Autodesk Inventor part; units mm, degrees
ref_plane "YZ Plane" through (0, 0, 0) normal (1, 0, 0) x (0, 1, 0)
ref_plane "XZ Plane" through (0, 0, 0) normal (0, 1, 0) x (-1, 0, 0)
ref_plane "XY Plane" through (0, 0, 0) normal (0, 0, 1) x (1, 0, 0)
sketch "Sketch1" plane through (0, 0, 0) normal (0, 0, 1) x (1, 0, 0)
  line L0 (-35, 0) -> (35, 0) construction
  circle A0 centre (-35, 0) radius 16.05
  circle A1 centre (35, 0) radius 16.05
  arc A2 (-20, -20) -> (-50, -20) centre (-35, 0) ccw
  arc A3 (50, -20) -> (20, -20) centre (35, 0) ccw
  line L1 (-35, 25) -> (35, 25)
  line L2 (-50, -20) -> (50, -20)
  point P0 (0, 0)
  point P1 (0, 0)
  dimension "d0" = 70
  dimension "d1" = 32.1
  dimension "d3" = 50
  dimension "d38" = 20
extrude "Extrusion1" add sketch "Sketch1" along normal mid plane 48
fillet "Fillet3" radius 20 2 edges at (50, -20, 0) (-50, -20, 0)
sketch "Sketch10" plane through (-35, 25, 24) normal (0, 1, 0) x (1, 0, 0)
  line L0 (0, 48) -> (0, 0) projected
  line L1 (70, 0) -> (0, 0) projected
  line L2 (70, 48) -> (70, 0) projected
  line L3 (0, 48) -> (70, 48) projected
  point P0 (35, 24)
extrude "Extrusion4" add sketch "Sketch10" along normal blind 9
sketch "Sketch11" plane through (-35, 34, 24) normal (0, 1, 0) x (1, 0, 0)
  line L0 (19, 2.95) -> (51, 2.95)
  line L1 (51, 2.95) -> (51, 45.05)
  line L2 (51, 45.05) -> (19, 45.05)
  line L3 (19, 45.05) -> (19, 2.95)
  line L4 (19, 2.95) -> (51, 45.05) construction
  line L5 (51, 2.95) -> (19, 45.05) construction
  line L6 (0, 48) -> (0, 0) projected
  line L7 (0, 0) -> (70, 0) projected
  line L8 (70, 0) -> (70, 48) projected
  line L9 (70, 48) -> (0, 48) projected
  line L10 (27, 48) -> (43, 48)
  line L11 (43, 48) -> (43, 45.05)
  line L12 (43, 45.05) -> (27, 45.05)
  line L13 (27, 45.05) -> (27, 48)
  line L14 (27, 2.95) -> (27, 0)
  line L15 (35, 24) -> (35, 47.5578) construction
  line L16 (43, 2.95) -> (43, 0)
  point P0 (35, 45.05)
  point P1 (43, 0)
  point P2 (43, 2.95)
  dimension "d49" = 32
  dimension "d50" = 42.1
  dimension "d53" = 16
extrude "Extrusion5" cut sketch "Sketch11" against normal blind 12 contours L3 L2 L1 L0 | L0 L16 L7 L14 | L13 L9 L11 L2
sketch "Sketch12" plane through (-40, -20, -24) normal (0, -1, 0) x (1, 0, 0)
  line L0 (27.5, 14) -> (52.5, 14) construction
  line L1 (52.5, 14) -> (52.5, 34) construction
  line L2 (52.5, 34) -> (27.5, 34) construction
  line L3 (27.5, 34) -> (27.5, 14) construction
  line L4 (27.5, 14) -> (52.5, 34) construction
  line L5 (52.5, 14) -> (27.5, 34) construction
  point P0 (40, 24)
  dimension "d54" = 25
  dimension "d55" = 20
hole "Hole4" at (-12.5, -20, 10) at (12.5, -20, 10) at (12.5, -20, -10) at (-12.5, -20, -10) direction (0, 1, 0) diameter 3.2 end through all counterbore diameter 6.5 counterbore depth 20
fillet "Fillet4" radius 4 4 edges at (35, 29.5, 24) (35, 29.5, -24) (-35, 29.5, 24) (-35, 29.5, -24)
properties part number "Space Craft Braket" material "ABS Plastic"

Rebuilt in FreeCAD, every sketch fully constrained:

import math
import FreeCAD as App
import Part
import Sketcher
Q = App.Units.Quantity


def edges_at(feature, points):
    """Names of the edges that pass closest to the given points."""
    edges = feature.Shape.Edges
    near = lambda p: min(range(len(edges)), key=lambda i: edges[i].distToShape(Part.Vertex(*p))[0])
    return sorted({f"Edge{near(p) + 1}" for p in points})


def add_polygon(sketch, points):
    """Adds a closed chain of lines whose ends are joined by coincident constraints."""
    first, n = sketch.GeometryCount, len(points)
    for a, b in zip(points, points[1:] + points[:1]):
        sketch.addGeometry(Part.LineSegment(App.Vector(*a, 0), App.Vector(*b, 0)), False)
    for i in range(n):
        sketch.addConstraint(Sketcher.Constraint("Coincident", first + i, 2, first + (i + 1) % n, 1))

doc = App.newDocument("Part")
body = doc.addObject("PartDesign::Body", "Body")

# Sketch on XY plane
sketch1 = body.newObject("Sketcher::SketchObject", "Sketch")
sketch1.AttachmentSupport = (doc.getObject("XY_Plane"), [""])
sketch1.MapMode = "FlatFace"
sketch1.addGeometry([
    Part.LineSegment(App.Vector(-50, -20, 0), App.Vector(50, -20, 0)),  # 0
    Part.ArcOfCircle(Part.Circle(App.Vector(35, 0, 0), App.Vector(0, 0, 1), 25), math.radians(-53), math.radians(90)),  # 1
    Part.LineSegment(App.Vector(35, 25, 0), App.Vector(-35, 25, 0)),  # 2
    Part.ArcOfCircle(Part.Circle(App.Vector(-35, 0, 0), App.Vector(0, 0, 1), 25), math.radians(90), math.radians(233)),  # 3
    Part.Circle(App.Vector(-35, 0, 0), App.Vector(0, 0, 1), 16),  # 4
    Part.Circle(App.Vector(35, 0, 0), App.Vector(0, 0, 1), 16),  # 5
], False)
sketch1.addConstraint([
    Sketcher.Constraint("Coincident", 0, 2, 1, 1),
    Sketcher.Constraint("Tangent", 1, 2, 2, 1),
    Sketcher.Constraint("Tangent", 2, 2, 3, 1),
    Sketcher.Constraint("Coincident", 3, 2, 0, 1),
    Sketcher.Constraint("Horizontal", 0),
    Sketcher.Constraint("Horizontal", 2),
    Sketcher.Constraint("Coincident", 4, 3, 3, 3),
    Sketcher.Constraint("Coincident", 5, 3, 1, 3),
    Sketcher.Constraint("Equal", 1, 3),
    Sketcher.Constraint("Equal", 4, 5),
    Sketcher.Constraint("Symmetric", 1, 3, 3, 3, -1, 1),
    Sketcher.Constraint("Radius", 1, Q("25 mm")),
    Sketcher.Constraint("Diameter", 4, Q("32.1 mm")),
    Sketcher.Constraint("DistanceX", 2, 2, 2, 1, Q("70 mm")),
    Sketcher.Constraint("DistanceX", -1, 1, 0, 2, Q("50 mm")),
])
pad1 = body.newObject("PartDesign::Pad", "Pad")
pad1.Profile = sketch1
pad1.Length = 48
pad1.Midplane = True
doc.recompute()

fillet = body.newObject("PartDesign::Fillet", "Fillet")
fillet.Base = (pad1, edges_at(pad1, [(50, -20, 0), (-50, -20, 0)]))
fillet.Radius = 20

# Sketch on XZ plane
sketch2 = body.newObject("Sketcher::SketchObject", "Sketch001")
sketch2.AttachmentSupport = (doc.getObject("XZ_Plane"), [""])
sketch2.MapMode = "FlatFace"
sketch2.AttachmentOffset = App.Placement(App.Vector(0, 0, -25), App.Rotation())
add_polygon(sketch2, [(35, -24), (-35, -24), (-35, 24), (35, 24)])  # lines 0-3
sketch2.addConstraint([
    Sketcher.Constraint("Horizontal", 0),
    Sketcher.Constraint("Vertical", 1),
    Sketcher.Constraint("Horizontal", 2),
    Sketcher.Constraint("Vertical", 3),
    Sketcher.Constraint("Symmetric", 0, 2, 2, 2, -1, 1),
    Sketcher.Constraint("DistanceX", 0, 2, 0, 1, Q("70 mm")),
    Sketcher.Constraint("DistanceY", 1, 1, 1, 2, Q("48 mm")),
])
pad2 = body.newObject("PartDesign::Pad", "Pad001")
pad2.Profile = sketch2
pad2.Length = 9
pad2.Reversed = True

# Sketch on XZ plane
sketch3 = body.newObject("Sketcher::SketchObject", "Sketch002")
sketch3.AttachmentSupport = (doc.getObject("XZ_Plane"), [""])
sketch3.MapMode = "FlatFace"
sketch3.AttachmentOffset = App.Placement(App.Vector(0, 0, -34), App.Rotation())
add_polygon(sketch3, [(-16, -21.1), (-16, 21.1), (-8, 21.1), (-8, 24), (8, 24), (8, 21.1), (16, 21.1), (16, -21.1), (8, -21.1), (8, -24), (-8, -24), (-8, -21.1)])  # lines 0-11
sketch3.addConstraint([
    Sketcher.Constraint("Vertical", 0),
    Sketcher.Constraint("Horizontal", 1),
    Sketcher.Constraint("Vertical", 2),
    Sketcher.Constraint("Horizontal", 3),
    Sketcher.Constraint("Vertical", 4),
    Sketcher.Constraint("Horizontal", 5),
    Sketcher.Constraint("Vertical", 6),
    Sketcher.Constraint("Horizontal", 7),
    Sketcher.Constraint("Vertical", 8),
    Sketcher.Constraint("Horizontal", 9),
    Sketcher.Constraint("Vertical", 10),
    Sketcher.Constraint("Horizontal", 11),
    Sketcher.Constraint("Symmetric", 0, 2, 6, 2, -1, 1),
    Sketcher.Constraint("Symmetric", 2, 2, 8, 2, -1, 1),
    Sketcher.Constraint("Symmetric", 4, 2, 10, 2, -1, 1),
    Sketcher.Constraint("Symmetric", 1, 2, 4, 2, -2),
    Sketcher.Constraint("DistanceX", 3, 1, 3, 2, Q("16 mm")),
    Sketcher.Constraint("DistanceY", 0, 1, 0, 2, Q("42.1 mm")),
    Sketcher.Constraint("DistanceX", 0, 2, -1, 1, Q("16 mm")),
    Sketcher.Constraint("DistanceY", -1, 1, 2, 2, Q("24 mm")),
])
pocket1 = body.newObject("PartDesign::Pocket", "Pocket")
pocket1.Profile = sketch3
pocket1.Length = 12
pocket1.Reversed = True

# Sketch on XZ plane
sketch4 = body.newObject("Sketcher::SketchObject", "Sketch003")
sketch4.AttachmentSupport = (doc.getObject("XZ_Plane"), [""])
sketch4.MapMode = "FlatFace"
sketch4.AttachmentOffset = App.Placement(App.Vector(0, 0, 20), App.Rotation())
sketch4.addGeometry([
    Part.Circle(App.Vector(-12.5, 10, 0), App.Vector(0, 0, 1), 1.6),
    Part.Circle(App.Vector(12.5, 10, 0), App.Vector(0, 0, 1), 1.6),
    Part.Circle(App.Vector(12.5, -10, 0), App.Vector(0, 0, 1), 1.6),
    Part.Circle(App.Vector(-12.5, -10, 0), App.Vector(0, 0, 1), 1.6),
], False)
sketch4.addConstraint([
    Sketcher.Constraint("Equal", 0, 1),
    Sketcher.Constraint("Equal", 1, 2),
    Sketcher.Constraint("Equal", 2, 3),
    Sketcher.Constraint("Symmetric", 0, 3, 2, 3, -1, 1),
    Sketcher.Constraint("Symmetric", 1, 3, 3, 3, -1, 1),
    Sketcher.Constraint("Symmetric", 0, 3, 1, 3, -2),
    Sketcher.Constraint("Diameter", 0, Q("3.2 mm")),
    Sketcher.Constraint("DistanceY", -1, 1, 0, 3, Q("10 mm")),
    Sketcher.Constraint("DistanceX", 0, 3, 1, 3, Q("25 mm")),
])
doc.recompute()
hole = body.newObject("PartDesign::Hole", "Hole")
hole.Profile = sketch4
hole.ThreadType = "None"
hole.Diameter = 3.2
hole.DepthType = "ThroughAll"
hole.HoleCutType = "Counterbore"
hole.HoleCutDiameter = 6.5
hole.HoleCutDepth = 20
doc.recompute()

fillet2 = body.newObject("PartDesign::Fillet", "Fillet001")
fillet2.Base = (hole, edges_at(hole, [
    (35, 29.5, 24),
    (35, 29.5, -24),
    (-35, 29.5, 24),
    (-35, 29.5, -24),
]))
fillet2.Radius = 4

doc.recompute()
